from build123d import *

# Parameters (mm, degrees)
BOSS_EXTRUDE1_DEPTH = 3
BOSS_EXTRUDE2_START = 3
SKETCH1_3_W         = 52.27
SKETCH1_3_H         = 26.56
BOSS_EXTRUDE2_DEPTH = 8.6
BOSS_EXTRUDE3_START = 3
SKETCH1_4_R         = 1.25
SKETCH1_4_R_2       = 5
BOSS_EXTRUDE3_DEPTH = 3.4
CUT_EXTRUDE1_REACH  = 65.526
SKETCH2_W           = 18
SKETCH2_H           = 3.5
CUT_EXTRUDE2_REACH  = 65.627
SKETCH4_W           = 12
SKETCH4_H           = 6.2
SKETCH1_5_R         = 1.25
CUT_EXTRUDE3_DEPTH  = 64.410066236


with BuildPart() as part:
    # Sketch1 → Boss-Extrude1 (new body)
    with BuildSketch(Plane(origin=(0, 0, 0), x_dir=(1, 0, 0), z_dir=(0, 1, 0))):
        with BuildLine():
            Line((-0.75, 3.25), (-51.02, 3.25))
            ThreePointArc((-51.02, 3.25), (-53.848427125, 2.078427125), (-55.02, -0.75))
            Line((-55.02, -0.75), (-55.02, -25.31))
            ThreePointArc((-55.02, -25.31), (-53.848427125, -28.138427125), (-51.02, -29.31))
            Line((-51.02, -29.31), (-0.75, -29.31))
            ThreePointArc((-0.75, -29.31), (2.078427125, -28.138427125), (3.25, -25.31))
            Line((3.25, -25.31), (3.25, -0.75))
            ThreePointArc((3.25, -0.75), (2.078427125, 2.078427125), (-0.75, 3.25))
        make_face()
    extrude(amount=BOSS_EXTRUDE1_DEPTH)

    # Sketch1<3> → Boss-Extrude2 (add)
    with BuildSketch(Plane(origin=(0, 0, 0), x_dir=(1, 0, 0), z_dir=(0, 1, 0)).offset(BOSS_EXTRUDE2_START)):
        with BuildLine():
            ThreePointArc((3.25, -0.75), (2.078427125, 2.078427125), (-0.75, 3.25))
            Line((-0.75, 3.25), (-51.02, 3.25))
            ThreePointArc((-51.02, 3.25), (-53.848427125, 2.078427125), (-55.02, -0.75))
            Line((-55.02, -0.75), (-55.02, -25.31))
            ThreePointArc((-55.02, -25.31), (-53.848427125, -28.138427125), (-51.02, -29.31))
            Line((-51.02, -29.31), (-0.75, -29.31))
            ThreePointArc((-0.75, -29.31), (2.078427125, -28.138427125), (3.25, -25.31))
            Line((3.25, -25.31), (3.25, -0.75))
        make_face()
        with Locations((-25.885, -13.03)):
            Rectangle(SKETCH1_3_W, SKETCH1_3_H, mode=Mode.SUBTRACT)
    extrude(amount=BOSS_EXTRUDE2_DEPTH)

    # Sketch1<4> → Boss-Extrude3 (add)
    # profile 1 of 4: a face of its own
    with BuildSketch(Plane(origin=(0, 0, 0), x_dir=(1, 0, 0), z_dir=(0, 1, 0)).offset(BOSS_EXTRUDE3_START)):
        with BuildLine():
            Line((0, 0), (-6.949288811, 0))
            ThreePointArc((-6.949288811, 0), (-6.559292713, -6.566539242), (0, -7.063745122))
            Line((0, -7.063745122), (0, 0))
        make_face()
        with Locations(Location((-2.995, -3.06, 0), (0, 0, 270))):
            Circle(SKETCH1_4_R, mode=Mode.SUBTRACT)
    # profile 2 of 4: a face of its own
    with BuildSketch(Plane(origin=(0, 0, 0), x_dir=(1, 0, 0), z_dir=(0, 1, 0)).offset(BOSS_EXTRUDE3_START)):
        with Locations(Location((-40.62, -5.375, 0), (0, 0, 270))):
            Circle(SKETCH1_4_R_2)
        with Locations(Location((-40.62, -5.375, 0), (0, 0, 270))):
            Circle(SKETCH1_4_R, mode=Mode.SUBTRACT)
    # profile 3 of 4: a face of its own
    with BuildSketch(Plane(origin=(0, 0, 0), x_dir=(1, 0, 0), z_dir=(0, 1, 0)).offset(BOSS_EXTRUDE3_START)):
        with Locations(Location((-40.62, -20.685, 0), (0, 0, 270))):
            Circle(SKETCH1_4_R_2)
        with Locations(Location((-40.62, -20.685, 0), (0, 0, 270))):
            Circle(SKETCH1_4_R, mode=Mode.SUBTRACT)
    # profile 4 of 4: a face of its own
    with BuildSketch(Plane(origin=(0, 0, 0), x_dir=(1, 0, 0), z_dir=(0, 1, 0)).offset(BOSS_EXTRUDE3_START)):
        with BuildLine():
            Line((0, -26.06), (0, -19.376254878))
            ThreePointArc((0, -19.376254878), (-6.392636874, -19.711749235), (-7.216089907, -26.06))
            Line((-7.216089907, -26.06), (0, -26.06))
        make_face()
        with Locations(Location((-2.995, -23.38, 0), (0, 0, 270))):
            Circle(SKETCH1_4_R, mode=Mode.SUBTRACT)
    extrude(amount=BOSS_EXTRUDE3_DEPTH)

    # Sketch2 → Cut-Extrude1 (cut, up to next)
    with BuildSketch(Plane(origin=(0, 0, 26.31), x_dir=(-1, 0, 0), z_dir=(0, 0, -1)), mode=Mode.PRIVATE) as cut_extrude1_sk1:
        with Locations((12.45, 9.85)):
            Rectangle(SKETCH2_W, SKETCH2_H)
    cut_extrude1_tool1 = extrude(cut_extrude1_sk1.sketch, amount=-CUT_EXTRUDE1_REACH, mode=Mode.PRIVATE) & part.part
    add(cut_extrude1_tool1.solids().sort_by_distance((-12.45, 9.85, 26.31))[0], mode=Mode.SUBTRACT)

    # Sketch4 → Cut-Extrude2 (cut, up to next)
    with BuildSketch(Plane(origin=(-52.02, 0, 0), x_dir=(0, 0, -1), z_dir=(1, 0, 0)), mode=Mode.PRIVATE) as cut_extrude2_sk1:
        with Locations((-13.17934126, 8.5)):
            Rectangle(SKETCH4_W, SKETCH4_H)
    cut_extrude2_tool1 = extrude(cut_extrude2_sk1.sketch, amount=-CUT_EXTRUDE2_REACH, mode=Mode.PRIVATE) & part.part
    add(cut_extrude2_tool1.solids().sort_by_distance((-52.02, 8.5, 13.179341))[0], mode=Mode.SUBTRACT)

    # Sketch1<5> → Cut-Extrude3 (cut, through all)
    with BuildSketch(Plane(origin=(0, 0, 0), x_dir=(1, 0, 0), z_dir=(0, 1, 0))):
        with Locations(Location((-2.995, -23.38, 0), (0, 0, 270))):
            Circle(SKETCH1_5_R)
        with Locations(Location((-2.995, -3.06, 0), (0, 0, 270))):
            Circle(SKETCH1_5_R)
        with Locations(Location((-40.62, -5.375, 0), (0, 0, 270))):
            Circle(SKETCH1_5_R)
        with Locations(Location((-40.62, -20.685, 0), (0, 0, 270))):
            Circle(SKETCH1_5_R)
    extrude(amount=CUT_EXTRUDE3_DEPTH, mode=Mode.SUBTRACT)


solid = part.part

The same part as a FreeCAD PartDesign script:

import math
import FreeCAD as App
import Part
import Sketcher
from FreeCAD import Vector
Q = App.Units.Quantity

doc = App.newDocument("Part")
body = doc.addObject("PartDesign::Body", "Body")

# Sketch on XZ plane
sketch1 = body.newObject("Sketcher::SketchObject", "Sketch")
sketch1.AttachmentSupport = (doc.getObject("XZ_Plane"), [""])
sketch1.MapMode = "FlatFace"
sketch1.addGeometry(Part.LineSegment(Vector(-0.8, -3.2, 0), Vector(-51, -3.2, 0)), False)
sketch1.addGeometry(Part.ArcOfCircle(Part.Circle(Vector(-51, 0.7, 0), Vector(0, 0, 1), 4), math.radians(180), math.radians(270)), False)
sketch1.addGeometry(Part.LineSegment(Vector(-55, 0.8, 0), Vector(-55, 25.3, 0)), False)
sketch1.addGeometry(Part.ArcOfCircle(Part.Circle(Vector(-51, 25.3, 0), Vector(0, 0, 1), 4), math.radians(90), math.radians(180)), False)
sketch1.addGeometry(Part.LineSegment(Vector(-51, 29.3, 0), Vector(-0.8, 29.3, 0)), False)
sketch1.addGeometry(Part.ArcOfCircle(Part.Circle(Vector(-0.7, 25.3, 0), Vector(0, 0, 1), 4), math.radians(0), math.radians(90)), False)
sketch1.addGeometry(Part.LineSegment(Vector(3.2, 25.3, 0), Vector(3.2, 0.8, 0)), False)
sketch1.addGeometry(Part.ArcOfCircle(Part.Circle(Vector(-0.7, 0.7, 0), Vector(0, 0, 1), 4), math.radians(-90), math.radians(0)), False)
sketch1.addConstraint(Sketcher.Constraint("Tangent", 0, 2, 1, 2))
sketch1.addConstraint(Sketcher.Constraint("Tangent", 1, 1, 2, 1))
sketch1.addConstraint(Sketcher.Constraint("Tangent", 2, 2, 3, 2))
sketch1.addConstraint(Sketcher.Constraint("Tangent", 3, 1, 4, 1))
sketch1.addConstraint(Sketcher.Constraint("Tangent", 4, 2, 5, 2))
sketch1.addConstraint(Sketcher.Constraint("Tangent", 5, 1, 6, 1))
sketch1.addConstraint(Sketcher.Constraint("Tangent", 6, 2, 7, 2))
sketch1.addConstraint(Sketcher.Constraint("Tangent", 7, 1, 0, 1))
sketch1.addConstraint(Sketcher.Constraint("Horizontal", 0))
sketch1.addConstraint(Sketcher.Constraint("Vertical", 2))
sketch1.addConstraint(Sketcher.Constraint("Horizontal", 4))
sketch1.addConstraint(Sketcher.Constraint("Vertical", 6))
sketch1.addConstraint(Sketcher.Constraint("Equal", 1, 3))
sketch1.addConstraint(Sketcher.Constraint("Equal", 3, 5))
sketch1.addConstraint(Sketcher.Constraint("Equal", 5, 7))
sketch1.addConstraint(Sketcher.Constraint("Radius", 1, Q("4 mm")))
sketch1.addConstraint(Sketcher.Constraint("DistanceX", 0, 2, 0, 1, Q("50.27 mm")))
sketch1.addConstraint(Sketcher.Constraint("DistanceY", 2, 1, 2, 2, Q("24.56 mm")))
sketch1.addConstraint(Sketcher.Constraint("DistanceX", 1, 3, -1, 1, Q("51.02 mm")))
sketch1.addConstraint(Sketcher.Constraint("DistanceY", -1, 1, 1, 3, Q("0.75 mm")))
pad1 = body.newObject("PartDesign::Pad", "Pad")
pad1.Profile = sketch1
pad1.Length = 3
pad1.Reversed = True

# Sketch on XZ plane
sketch2 = body.newObject("Sketcher::SketchObject", "Sketch001")
sketch2.AttachmentSupport = (doc.getObject("XZ_Plane"), [""])
sketch2.MapMode = "FlatFace"
sketch2.AttachmentOffset = App.Placement(Vector(0, 0, -3), App.Rotation())
sketch2.addGeometry(Part.ArcOfCircle(Part.Circle(Vector(-0.7, 0.7, 0), Vector(0, 0, 1), 4), math.radians(-90), math.radians(0)), False)
sketch2.addGeometry(Part.LineSegment(Vector(-0.8, -3.2, 0), Vector(-51, -3.2, 0)), False)
sketch2.addGeometry(Part.ArcOfCircle(Part.Circle(Vector(-51, 0.7, 0), Vector(0, 0, 1), 4), math.radians(180), math.radians(270)), False)
sketch2.addGeometry(Part.LineSegment(Vector(-55, 0.8, 0), Vector(-55, 25.3, 0)), False)
sketch2.addGeometry(Part.ArcOfCircle(Part.Circle(Vector(-51, 25.3, 0), Vector(0, 0, 1), 4), math.radians(90), math.radians(180)), False)
sketch2.addGeometry(Part.LineSegment(Vector(-51, 29.3, 0), Vector(-0.8, 29.3, 0)), False)
sketch2.addGeometry(Part.ArcOfCircle(Part.Circle(Vector(-0.7, 25.3, 0), Vector(0, 0, 1), 4), math.radians(0), math.radians(90)), False)
sketch2.addGeometry(Part.LineSegment(Vector(3.2, 25.3, 0), Vector(3.2, 0.8, 0)), False)
sketch2.addGeometry(Part.LineSegment(Vector(0.2, 26.3, 0), Vector(-52, 26.3, 0)), False)
sketch2.addGeometry(Part.LineSegment(Vector(-52, 26.3, 0), Vector(-52, -0.2, 0)), False)
sketch2.addGeometry(Part.LineSegment(Vector(-52, -0.2, 0), Vector(0.2, -0.2, 0)), False)
sketch2.addGeometry(Part.LineSegment(Vector(0.2, -0.2, 0), Vector(0.2, 26.3, 0)), False)
sketch2.addConstraint(Sketcher.Constraint("Tangent", 0, 1, 1, 1))
sketch2.addConstraint(Sketcher.Constraint("Tangent", 1, 2, 2, 2))
sketch2.addConstraint(Sketcher.Constraint("Tangent", 2, 1, 3, 1))
sketch2.addConstraint(Sketcher.Constraint("Tangent", 3, 2, 4, 2))
sketch2.addConstraint(Sketcher.Constraint("Tangent", 4, 1, 5, 1))
sketch2.addConstraint(Sketcher.Constraint("Tangent", 5, 2, 6, 2))
sketch2.addConstraint(Sketcher.Constraint("Tangent", 6, 1, 7, 1))
sketch2.addConstraint(Sketcher.Constraint("Tangent", 7, 2, 0, 2))
sketch2.addConstraint(Sketcher.Constraint("Coincident", 8, 2, 9, 1))
sketch2.addConstraint(Sketcher.Constraint("Coincident", 9, 2, 10, 1))
sketch2.addConstraint(Sketcher.Constraint("Coincident", 10, 2, 11, 1))
sketch2.addConstraint(Sketcher.Constraint("Coincident", 11, 2, 8, 1))
sketch2.addConstraint(Sketcher.Constraint("Horizontal", 1))
sketch2.addConstraint(Sketcher.Constraint("Vertical", 3))
sketch2.addConstraint(Sketcher.Constraint("Horizontal", 5))
sketch2.addConstraint(Sketcher.Constraint("Vertical", 7))
sketch2.addConstraint(Sketcher.Constraint("Horizontal", 8))
sketch2.addConstraint(Sketcher.Constraint("Vertical", 9))
sketch2.addConstraint(Sketcher.Constraint("Horizontal", 10))
sketch2.addConstraint(Sketcher.Constraint("Vertical", 11))
sketch2.addConstraint(Sketcher.Constraint("Equal", 0, 2))
sketch2.addConstraint(Sketcher.Constraint("Equal", 2, 4))
sketch2.addConstraint(Sketcher.Constraint("Equal", 4, 6))
sketch2.addConstraint(Sketcher.Constraint("Radius", 0, Q("4 mm")))
sketch2.addConstraint(Sketcher.Constraint("DistanceX", 8, 2, 4, 3, Q("1 mm")))
sketch2.addConstraint(Sketcher.Constraint("DistanceY", 4, 3, 8, 2, Q("1 mm")))
sketch2.addConstraint(Sketcher.Constraint("DistanceY", 9, 2, 2, 3, Q("1 mm")))
sketch2.addConstraint(Sketcher.Constraint("DistanceX", 0, 3, 10, 2, Q("1 mm")))
sketch2.addConstraint(Sketcher.Constraint("DistanceX", 1, 2, 1, 1, Q("50.27 mm")))
sketch2.addConstraint(Sketcher.Constraint("DistanceY", 3, 1, 3, 2, Q("24.56 mm")))
sketch2.addConstraint(Sketcher.Constraint("DistanceX", 0, 3, -1, 1, Q("0.75 mm")))
sketch2.addConstraint(Sketcher.Constraint("DistanceY", -1, 1, 0, 3, Q("0.75 mm")))
pad2 = body.newObject("PartDesign::Pad", "Pad001")
pad2.Profile = sketch2
pad2.Length = 8.6
pad2.Reversed = True

# Sketch on XZ plane
sketch3 = body.newObject("Sketcher::SketchObject", "Sketch002")
sketch3.AttachmentSupport = (doc.getObject("XZ_Plane"), [""])
sketch3.MapMode = "FlatFace"
sketch3.AttachmentOffset = App.Placement(Vector(0, 0, -3), App.Rotation())
sketch3.addGeometry(Part.LineSegment(Vector(0, 0, 0), Vector(-6.9, 0, 0)), False)
sketch3.addGeometry(Part.ArcOfCircle(Part.Circle(Vector(-3, 3.1, 0), Vector(0, 0, 1), 5), math.radians(53), math.radians(218)), False)
sketch3.addGeometry(Part.LineSegment(Vector(0, 7.1, 0), Vector(0, 0, 0)), False)
sketch3.addGeometry(Part.Circle(Vector(-3, 3.1, 0), Vector(0, 0, 1), 1.2), False)
sketch3.addGeometry(Part.Circle(Vector(-40.6, 5.4, 0), Vector(0, 0, 1), 5), False)
sketch3.addGeometry(Part.Circle(Vector(-40.6, 5.4, 0), Vector(0, 0, 1), 1.2), False)
sketch3.addGeometry(Part.Circle(Vector(-40.6, 20.7, 0), Vector(0, 0, 1), 5), False)
sketch3.addGeometry(Part.Circle(Vector(-40.6, 20.7, 0), Vector(0, 0, 1), 1.2), False)
sketch3.addGeometry(Part.LineSegment(Vector(0, 26.1, 0), Vector(0, 19.4, 0)), False)
sketch3.addGeometry(Part.ArcOfCircle(Part.Circle(Vector(-3, 23.4, 0), Vector(0, 0, 1), 5), math.radians(148), math.radians(307)), False)
sketch3.addGeometry(Part.LineSegment(Vector(-7.2, 26.1, 0), Vector(0, 26.1, 0)), False)
sketch3.addGeometry(Part.Circle(Vector(-3, 23.4, 0), Vector(0, 0, 1), 1.2), False)
sketch3.addConstraint(Sketcher.Constraint("Coincident", 0, 2, 1, 2))
sketch3.addConstraint(Sketcher.Constraint("Coincident", 1, 1, 2, 1))
sketch3.addConstraint(Sketcher.Constraint("Coincident", 2, 2, 0, 1))
sketch3.addConstraint(Sketcher.Constraint("Coincident", 8, 2, 9, 2))
sketch3.addConstraint(Sketcher.Constraint("Coincident", 9, 1, 10, 1))
sketch3.addConstraint(Sketcher.Constraint("Coincident", 10, 2, 8, 1))
sketch3.addConstraint(Sketcher.Constraint("Horizontal", 0))
sketch3.addConstraint(Sketcher.Constraint("Vertical", 2))
sketch3.addConstraint(Sketcher.Constraint("Vertical", 8))
sketch3.addConstraint(Sketcher.Constraint("Horizontal", 10))
sketch3.addConstraint(Sketcher.Constraint("Coincident", 2, 2, -1, 1))
sketch3.addConstraint(Sketcher.Constraint("Coincident", 3, 3, 1, 3))
sketch3.addConstraint(Sketcher.Constraint("Coincident", 5, 3, 4, 3))
sketch3.addConstraint(Sketcher.Constraint("Coincident", 7, 3, 6, 3))
sketch3.addConstraint(Sketcher.Constraint("Coincident", 11, 3, 9, 3))
sketch3.addConstraint(Sketcher.Constraint("Equal", 1, 4))
sketch3.addConstraint(Sketcher.Constraint("Equal", 3, 5))
sketch3.addConstraint(Sketcher.Constraint("Equal", 4, 6))
sketch3.addConstraint(Sketcher.Constraint("Equal", 5, 7))
sketch3.addConstraint(Sketcher.Constraint("Equal", 6, 9))
sketch3.addConstraint(Sketcher.Constraint("Equal", 7, 11))
sketch3.addConstraint(Sketcher.Constraint("PointOnObject", 8, 2, -2))
sketch3.addConstraint(Sketcher.Constraint("Vertical", 5, 3, 6, 3))
sketch3.addConstraint(Sketcher.Constraint("Vertical", 3, 3, 9, 3))
sketch3.addConstraint(Sketcher.Constraint("Diameter", 4, Q("10 mm")))
sketch3.addConstraint(Sketcher.Constraint("Diameter", 3, Q("2.5 mm")))
sketch3.addConstraint(Sketcher.Constraint("DistanceY", 1, 3, 9, 1, Q("23 mm")))
sketch3.addConstraint(Sketcher.Constraint("DistanceY", -1, 1, 1, 3, Q("3.06 mm")))
sketch3.addConstraint(Sketcher.Constraint("DistanceX", 4, 3, -1, 1, Q("40.62 mm")))
sketch3.addConstraint(Sketcher.Constraint("DistanceY", -1, 1, 9, 3, Q("23.38 mm")))
sketch3.addConstraint(Sketcher.Constraint("DistanceY", 4, 3, 6, 3, Q("15.31 mm")))
sketch3.addConstraint(Sketcher.Constraint("DistanceX", 1, 3, -1, 1, Q("2.995 mm")))
sketch3.addConstraint(Sketcher.Constraint("DistanceY", -1, 1, 4, 3, Q("5.375 mm")))
pad3 = body.newObject("PartDesign::Pad", "Pad002")
pad3.Profile = sketch3
pad3.Length = 3.4
pad3.Reversed = True

# Sketch on XY plane
sketch4 = body.newObject("Sketcher::SketchObject", "Sketch003")
sketch4.AttachmentSupport = (doc.getObject("XY_Plane"), [""])
sketch4.MapMode = "FlatFace"
sketch4.AttachmentOffset = App.Placement(Vector(0, 0, 26.31), App.Rotation())
sketch4.addGeometry(Part.LineSegment(Vector(-3.5, 11.6, 0), Vector(-3.5, 8.1, 0)), False)
sketch4.addGeometry(Part.LineSegment(Vector(-3.5, 8.1, 0), Vector(-21.4, 8.1, 0)), False)
sketch4.addGeometry(Part.LineSegment(Vector(-21.4, 8.1, 0), Vector(-21.4, 11.6, 0)), False)
sketch4.addGeometry(Part.LineSegment(Vector(-21.4, 11.6, 0), Vector(-3.5, 11.6, 0)), False)
sketch4.addConstraint(Sketcher.Constraint("Coincident", 0, 2, 1, 1))
sketch4.addConstraint(Sketcher.Constraint("Coincident", 1, 2, 2, 1))
sketch4.addConstraint(Sketcher.Constraint("Coincident", 2, 2, 3, 1))
sketch4.addConstraint(Sketcher.Constraint("Coincident", 3, 2, 0, 1))
sketch4.addConstraint(Sketcher.Constraint("Vertical", 0))
sketch4.addConstraint(Sketcher.Constraint("Horizontal", 1))
sketch4.addConstraint(Sketcher.Constraint("Vertical", 2))
sketch4.addConstraint(Sketcher.Constraint("Horizontal", 3))
sketch4.addConstraint(Sketcher.Constraint("DistanceX", 1, 2, 1, 1, Q("18 mm")))
sketch4.addConstraint(Sketcher.Constraint("DistanceY", 0, 2, 0, 1, Q("3.5 mm")))
sketch4.addConstraint(Sketcher.Constraint("DistanceY", -1, 1, 0, 2, Q("8.1 mm")))
sketch4.addConstraint(Sketcher.Constraint("DistanceX", 0, 2, -1, 1, Q("3.45 mm")))
pocket1 = body.newObject("PartDesign::Pocket", "Pocket")
pocket1.Profile = sketch4
pocket1.Type = "UpToFirst"
pocket1.Reversed = True

# Sketch on YZ plane
sketch5 = body.newObject("Sketcher::SketchObject", "Sketch004")
sketch5.AttachmentSupport = (doc.getObject("YZ_Plane"), [""])
sketch5.MapMode = "FlatFace"
sketch5.AttachmentOffset = App.Placement(Vector(0, 0, -52.02), App.Rotation())
sketch5.addGeometry(Part.LineSegment(Vector(12, 19, 0), Vector(5, 19, 0)), False)
sketch5.addGeometry(Part.LineSegment(Vector(5, 19, 0), Vector(5, 7, 0)), False)
sketch5.addGeometry(Part.LineSegment(Vector(5, 7, 0), Vector(12, 7, 0)), False)
sketch5.addGeometry(Part.LineSegment(Vector(12, 7, 0), Vector(12, 19, 0)), False)
sketch5.addConstraint(Sketcher.Constraint("Coincident", 0, 2, 1, 1))
sketch5.addConstraint(Sketcher.Constraint("Coincident", 1, 2, 2, 1))
sketch5.addConstraint(Sketcher.Constraint("Coincident", 2, 2, 3, 1))
sketch5.addConstraint(Sketcher.Constraint("Coincident", 3, 2, 0, 1))
sketch5.addConstraint(Sketcher.Constraint("Horizontal", 0))
sketch5.addConstraint(Sketcher.Constraint("Vertical", 1))
sketch5.addConstraint(Sketcher.Constraint("Horizontal", 2))
sketch5.addConstraint(Sketcher.Constraint("Vertical", 3))
sketch5.addConstraint(Sketcher.Constraint("DistanceY", 1, 2, 1, 1, Q("12 mm")))
sketch5.addConstraint(Sketcher.Constraint("DistanceX", 0, 2, 0, 1, Q("6.2 mm")))
sketch5.addConstraint(Sketcher.Constraint("DistanceX", -1, 1, 0, 2, Q("5.4 mm")))
sketch5.addConstraint(Sketcher.Constraint("DistanceY", -1, 1, 0, 2, Q("19.179341 mm")))
pocket2 = body.newObject("PartDesign::Pocket", "Pocket001")
pocket2.Profile = sketch5
pocket2.Type = "UpToFirst"

# Sketch on XZ plane
sketch6 = body.newObject("Sketcher::SketchObject", "Sketch005")
sketch6.AttachmentSupport = (doc.getObject("XZ_Plane"), [""])
sketch6.MapMode = "FlatFace"
sketch6.addGeometry(Part.Circle(Vector(-3, 23.4, 0), Vector(0, 0, 1), 1.2), False)
sketch6.addGeometry(Part.Circle(Vector(-3, 3.1, 0), Vector(0, 0, 1), 1.2), False)
sketch6.addGeometry(Part.Circle(Vector(-40.6, 5.4, 0), Vector(0, 0, 1), 1.2), False)
sketch6.addGeometry(Part.Circle(Vector(-40.6, 20.7, 0), Vector(0, 0, 1), 1.2), False)
sketch6.addConstraint(Sketcher.Constraint("Equal", 0, 1))
sketch6.addConstraint(Sketcher.Constraint("Equal", 1, 2))
sketch6.addConstraint(Sketcher.Constraint("Equal", 2, 3))
sketch6.addConstraint(Sketcher.Constraint("Vertical", 0, 3, 1, 3))
sketch6.addConstraint(Sketcher.Constraint("Vertical", 2, 3, 3, 3))
sketch6.addConstraint(Sketcher.Constraint("Diameter", 0, Q("2.5 mm")))
sketch6.addConstraint(Sketcher.Constraint("DistanceY", -1, 1, 0, 3, Q("23.38 mm")))
sketch6.addConstraint(Sketcher.Constraint("DistanceY", -1, 1, 1, 3, Q("3.06 mm")))
sketch6.addConstraint(Sketcher.Constraint("DistanceX", 2, 3, -1, 1, Q("40.62 mm")))
sketch6.addConstraint(Sketcher.Constraint("DistanceY", 2, 3, 3, 3, Q("15.31 mm")))
sketch6.addConstraint(Sketcher.Constraint("DistanceX", 0, 3, -1, 1, Q("2.995 mm")))
sketch6.addConstraint(Sketcher.Constraint("DistanceY", -1, 1, 2, 3, Q("5.375 mm")))
pocket3 = body.newObject("PartDesign::Pocket", "Pocket002")
pocket3.Profile = sketch6
pocket3.Type = "ThroughAll"

doc.recompute()
